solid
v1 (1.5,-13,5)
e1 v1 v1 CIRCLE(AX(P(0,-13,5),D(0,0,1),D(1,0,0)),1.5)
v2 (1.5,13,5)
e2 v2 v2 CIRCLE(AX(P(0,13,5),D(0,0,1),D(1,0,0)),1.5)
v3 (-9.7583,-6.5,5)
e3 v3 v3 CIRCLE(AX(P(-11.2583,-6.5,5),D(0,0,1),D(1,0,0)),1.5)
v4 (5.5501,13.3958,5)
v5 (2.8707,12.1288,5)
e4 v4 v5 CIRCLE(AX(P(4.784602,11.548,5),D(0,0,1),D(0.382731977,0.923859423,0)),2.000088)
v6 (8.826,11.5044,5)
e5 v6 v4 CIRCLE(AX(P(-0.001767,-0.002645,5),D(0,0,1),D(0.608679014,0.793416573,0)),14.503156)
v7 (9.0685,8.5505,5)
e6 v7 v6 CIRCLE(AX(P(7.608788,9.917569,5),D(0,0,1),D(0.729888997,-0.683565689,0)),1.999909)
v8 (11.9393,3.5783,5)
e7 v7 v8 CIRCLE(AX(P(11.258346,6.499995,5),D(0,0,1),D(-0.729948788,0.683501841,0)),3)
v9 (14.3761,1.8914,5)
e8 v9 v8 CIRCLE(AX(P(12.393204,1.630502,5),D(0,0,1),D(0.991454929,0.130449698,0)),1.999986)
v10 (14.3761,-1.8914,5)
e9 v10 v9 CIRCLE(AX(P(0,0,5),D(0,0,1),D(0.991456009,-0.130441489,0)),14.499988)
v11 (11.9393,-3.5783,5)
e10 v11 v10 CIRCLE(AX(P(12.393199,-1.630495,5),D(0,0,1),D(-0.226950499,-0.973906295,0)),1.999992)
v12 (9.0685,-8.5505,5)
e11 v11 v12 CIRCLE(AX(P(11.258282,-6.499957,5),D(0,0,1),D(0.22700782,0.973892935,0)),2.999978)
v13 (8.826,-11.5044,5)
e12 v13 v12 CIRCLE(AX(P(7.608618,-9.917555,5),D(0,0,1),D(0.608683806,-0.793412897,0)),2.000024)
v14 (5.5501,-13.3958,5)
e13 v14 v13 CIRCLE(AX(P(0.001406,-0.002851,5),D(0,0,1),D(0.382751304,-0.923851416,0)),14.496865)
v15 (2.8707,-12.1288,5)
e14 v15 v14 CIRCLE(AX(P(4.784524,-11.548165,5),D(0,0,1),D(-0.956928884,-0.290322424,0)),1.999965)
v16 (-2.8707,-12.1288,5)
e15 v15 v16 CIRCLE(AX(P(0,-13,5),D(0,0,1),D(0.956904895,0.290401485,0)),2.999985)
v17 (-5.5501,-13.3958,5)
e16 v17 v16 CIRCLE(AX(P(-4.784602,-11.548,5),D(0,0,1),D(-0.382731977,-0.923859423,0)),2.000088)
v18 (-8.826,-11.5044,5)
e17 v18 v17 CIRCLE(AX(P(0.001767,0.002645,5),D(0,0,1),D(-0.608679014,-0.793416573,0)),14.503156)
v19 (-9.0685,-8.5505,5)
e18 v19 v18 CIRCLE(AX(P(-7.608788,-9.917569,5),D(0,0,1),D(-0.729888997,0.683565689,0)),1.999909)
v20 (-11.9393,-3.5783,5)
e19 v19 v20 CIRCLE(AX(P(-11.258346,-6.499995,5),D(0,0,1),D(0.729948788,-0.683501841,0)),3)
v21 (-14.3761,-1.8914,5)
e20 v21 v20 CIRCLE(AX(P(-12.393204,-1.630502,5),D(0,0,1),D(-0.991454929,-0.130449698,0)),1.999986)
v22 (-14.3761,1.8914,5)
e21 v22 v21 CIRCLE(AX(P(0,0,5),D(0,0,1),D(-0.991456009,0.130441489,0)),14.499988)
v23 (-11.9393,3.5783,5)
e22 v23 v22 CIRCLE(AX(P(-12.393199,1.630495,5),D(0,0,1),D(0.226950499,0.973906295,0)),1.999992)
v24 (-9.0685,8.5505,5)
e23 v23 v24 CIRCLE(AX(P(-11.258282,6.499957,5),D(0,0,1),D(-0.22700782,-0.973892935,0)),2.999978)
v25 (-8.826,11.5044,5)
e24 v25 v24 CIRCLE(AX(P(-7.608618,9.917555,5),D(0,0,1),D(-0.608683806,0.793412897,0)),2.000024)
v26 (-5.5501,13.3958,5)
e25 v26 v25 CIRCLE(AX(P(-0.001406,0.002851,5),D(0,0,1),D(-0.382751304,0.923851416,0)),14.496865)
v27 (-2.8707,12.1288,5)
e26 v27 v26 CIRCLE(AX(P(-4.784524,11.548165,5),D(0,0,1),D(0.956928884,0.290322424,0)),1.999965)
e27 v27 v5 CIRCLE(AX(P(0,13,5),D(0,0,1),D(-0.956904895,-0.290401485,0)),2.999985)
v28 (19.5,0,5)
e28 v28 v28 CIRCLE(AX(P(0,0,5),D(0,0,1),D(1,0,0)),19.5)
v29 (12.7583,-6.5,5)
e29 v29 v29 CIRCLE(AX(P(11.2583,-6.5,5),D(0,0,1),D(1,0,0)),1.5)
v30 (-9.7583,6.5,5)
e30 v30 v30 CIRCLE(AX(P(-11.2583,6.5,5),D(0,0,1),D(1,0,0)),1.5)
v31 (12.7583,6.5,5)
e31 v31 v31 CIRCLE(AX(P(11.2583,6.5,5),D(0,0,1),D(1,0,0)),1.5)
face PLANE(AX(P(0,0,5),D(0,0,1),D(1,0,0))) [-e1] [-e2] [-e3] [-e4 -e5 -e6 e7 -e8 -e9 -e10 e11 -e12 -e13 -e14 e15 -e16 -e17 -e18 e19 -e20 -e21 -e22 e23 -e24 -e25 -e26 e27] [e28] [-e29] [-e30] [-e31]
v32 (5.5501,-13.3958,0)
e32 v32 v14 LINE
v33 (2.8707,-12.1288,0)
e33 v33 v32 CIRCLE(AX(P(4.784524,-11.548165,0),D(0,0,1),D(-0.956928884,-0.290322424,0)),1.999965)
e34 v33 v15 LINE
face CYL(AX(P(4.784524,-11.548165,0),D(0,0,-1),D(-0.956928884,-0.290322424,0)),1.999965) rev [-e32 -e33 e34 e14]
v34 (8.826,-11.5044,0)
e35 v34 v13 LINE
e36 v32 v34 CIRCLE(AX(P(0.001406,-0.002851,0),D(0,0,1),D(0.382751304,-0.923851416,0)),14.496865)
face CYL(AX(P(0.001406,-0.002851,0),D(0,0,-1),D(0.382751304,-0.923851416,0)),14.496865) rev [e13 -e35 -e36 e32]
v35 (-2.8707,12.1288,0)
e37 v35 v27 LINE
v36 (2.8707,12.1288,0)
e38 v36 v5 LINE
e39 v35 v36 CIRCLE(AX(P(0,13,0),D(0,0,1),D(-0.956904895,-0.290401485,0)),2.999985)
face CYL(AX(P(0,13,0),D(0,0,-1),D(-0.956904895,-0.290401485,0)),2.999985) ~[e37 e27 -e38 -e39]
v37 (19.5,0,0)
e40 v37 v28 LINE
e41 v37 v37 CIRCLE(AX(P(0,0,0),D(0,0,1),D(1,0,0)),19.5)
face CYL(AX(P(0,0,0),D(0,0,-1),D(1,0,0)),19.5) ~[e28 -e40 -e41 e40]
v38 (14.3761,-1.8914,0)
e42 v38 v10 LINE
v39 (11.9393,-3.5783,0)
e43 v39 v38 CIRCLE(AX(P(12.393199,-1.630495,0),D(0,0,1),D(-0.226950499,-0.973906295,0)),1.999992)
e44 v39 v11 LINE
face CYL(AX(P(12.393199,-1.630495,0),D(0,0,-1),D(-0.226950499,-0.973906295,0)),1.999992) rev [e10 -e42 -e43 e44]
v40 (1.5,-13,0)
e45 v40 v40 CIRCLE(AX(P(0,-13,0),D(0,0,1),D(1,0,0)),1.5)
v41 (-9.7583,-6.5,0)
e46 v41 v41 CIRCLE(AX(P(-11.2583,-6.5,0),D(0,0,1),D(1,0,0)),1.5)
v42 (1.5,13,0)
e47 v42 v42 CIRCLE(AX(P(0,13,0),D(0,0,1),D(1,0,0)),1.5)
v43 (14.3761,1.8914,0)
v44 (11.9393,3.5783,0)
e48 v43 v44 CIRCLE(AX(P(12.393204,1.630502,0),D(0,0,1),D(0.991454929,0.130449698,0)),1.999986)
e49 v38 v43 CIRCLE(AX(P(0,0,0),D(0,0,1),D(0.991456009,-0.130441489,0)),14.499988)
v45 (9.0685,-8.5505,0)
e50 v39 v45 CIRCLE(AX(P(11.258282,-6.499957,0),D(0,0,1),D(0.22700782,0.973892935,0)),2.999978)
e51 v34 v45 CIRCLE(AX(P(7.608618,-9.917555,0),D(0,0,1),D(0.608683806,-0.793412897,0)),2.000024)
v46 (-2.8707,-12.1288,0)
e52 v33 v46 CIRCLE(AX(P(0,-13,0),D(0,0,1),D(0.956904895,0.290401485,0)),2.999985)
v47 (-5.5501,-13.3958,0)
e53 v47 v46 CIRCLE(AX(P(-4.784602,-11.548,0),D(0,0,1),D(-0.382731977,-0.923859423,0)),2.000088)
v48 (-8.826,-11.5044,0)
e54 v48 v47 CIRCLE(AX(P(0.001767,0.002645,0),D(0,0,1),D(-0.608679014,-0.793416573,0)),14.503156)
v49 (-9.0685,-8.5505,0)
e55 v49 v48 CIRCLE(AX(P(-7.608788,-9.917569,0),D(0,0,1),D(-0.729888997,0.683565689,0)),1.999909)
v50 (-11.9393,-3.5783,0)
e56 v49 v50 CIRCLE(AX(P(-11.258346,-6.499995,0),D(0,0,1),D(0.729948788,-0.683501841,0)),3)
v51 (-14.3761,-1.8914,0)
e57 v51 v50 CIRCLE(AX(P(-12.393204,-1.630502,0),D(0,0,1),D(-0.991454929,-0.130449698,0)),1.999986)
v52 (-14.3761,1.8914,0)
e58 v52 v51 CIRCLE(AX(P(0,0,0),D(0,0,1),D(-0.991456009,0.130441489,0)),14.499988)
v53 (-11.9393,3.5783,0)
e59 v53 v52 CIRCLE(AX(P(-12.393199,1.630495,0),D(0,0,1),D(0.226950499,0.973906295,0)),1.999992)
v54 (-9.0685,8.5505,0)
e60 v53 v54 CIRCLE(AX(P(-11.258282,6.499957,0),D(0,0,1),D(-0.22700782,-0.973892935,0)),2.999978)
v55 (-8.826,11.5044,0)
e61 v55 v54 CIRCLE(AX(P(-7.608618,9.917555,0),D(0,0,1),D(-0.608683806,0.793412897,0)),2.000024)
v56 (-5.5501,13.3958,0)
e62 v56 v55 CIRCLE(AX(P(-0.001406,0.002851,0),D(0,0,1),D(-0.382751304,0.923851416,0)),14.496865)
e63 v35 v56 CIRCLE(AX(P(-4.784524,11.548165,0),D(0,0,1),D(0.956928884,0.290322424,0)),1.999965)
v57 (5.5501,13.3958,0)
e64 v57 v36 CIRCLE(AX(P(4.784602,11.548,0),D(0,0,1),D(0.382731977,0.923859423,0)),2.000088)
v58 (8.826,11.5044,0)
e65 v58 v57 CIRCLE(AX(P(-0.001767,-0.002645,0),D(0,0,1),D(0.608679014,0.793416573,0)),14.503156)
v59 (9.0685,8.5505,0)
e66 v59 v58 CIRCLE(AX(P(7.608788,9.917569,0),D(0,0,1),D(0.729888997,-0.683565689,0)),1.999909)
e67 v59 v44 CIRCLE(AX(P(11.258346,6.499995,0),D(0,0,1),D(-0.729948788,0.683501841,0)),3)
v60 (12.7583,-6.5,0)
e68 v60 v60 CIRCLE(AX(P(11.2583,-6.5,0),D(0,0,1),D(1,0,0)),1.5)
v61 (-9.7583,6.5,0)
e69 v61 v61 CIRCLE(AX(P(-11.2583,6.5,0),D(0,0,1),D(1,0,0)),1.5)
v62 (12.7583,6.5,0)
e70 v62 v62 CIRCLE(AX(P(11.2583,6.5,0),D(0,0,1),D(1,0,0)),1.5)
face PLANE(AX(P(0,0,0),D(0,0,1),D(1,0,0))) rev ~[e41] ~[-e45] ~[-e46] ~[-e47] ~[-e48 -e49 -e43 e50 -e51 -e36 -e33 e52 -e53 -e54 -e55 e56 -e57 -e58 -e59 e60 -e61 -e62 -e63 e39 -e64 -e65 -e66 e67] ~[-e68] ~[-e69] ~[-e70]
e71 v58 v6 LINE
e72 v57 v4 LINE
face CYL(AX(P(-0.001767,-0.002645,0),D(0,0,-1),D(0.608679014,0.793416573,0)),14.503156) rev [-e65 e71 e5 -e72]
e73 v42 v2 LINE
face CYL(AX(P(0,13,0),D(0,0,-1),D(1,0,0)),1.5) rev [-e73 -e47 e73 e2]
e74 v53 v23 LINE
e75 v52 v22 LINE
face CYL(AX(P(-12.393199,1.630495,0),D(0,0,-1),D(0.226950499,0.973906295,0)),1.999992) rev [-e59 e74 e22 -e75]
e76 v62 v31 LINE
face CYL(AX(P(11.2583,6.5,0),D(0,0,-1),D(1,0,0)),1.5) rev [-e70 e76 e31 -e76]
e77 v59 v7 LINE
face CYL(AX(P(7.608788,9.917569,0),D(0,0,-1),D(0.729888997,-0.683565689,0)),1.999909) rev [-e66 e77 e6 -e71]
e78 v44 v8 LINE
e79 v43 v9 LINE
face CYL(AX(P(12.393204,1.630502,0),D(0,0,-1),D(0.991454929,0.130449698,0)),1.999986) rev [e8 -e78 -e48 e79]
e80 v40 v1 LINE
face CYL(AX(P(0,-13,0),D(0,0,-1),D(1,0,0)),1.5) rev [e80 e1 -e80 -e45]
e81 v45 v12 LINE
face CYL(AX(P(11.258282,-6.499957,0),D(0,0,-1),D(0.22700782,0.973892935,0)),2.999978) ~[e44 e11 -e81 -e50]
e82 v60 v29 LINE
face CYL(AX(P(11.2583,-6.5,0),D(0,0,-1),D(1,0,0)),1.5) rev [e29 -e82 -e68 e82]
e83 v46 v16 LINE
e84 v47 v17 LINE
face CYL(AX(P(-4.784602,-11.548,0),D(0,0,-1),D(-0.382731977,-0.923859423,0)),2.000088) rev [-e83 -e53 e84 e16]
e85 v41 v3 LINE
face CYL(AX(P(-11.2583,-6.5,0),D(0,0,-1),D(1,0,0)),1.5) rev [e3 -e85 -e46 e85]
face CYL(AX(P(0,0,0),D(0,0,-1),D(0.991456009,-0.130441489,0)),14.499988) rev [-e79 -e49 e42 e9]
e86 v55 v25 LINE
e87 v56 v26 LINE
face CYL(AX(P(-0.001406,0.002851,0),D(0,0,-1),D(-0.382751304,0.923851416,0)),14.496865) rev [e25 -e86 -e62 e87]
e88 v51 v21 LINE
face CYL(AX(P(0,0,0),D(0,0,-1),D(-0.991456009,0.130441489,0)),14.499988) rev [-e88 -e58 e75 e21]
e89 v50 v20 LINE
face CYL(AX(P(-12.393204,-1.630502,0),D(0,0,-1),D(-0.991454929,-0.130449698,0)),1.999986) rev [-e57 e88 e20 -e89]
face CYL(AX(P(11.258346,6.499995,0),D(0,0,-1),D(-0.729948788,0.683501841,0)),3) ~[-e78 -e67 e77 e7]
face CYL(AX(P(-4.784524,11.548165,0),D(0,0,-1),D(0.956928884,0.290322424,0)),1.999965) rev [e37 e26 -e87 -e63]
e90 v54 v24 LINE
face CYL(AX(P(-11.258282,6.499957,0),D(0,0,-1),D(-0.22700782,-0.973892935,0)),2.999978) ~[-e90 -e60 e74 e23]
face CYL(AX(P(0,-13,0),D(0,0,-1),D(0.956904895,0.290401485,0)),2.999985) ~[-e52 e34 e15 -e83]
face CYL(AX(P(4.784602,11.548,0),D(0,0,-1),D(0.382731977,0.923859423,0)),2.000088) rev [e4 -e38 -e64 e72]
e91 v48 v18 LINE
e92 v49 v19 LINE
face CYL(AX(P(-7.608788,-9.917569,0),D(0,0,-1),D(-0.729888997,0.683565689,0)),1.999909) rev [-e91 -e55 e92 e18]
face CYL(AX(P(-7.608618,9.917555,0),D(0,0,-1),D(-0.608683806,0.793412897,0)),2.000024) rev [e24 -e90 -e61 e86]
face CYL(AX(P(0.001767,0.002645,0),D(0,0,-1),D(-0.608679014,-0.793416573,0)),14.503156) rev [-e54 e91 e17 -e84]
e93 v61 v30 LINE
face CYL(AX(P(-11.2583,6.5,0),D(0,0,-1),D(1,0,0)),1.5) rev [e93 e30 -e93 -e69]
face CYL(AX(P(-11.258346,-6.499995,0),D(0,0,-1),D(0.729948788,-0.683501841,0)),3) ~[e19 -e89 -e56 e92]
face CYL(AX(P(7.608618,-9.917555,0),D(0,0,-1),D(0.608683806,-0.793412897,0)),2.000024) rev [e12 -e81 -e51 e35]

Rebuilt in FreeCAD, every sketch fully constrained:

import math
import FreeCAD as App
import Part
import Sketcher
Q = App.Units.Quantity

doc = App.newDocument("Part")
body = doc.addObject("PartDesign::Body", "Body")

sketch1 = body.newObject("Sketcher::SketchObject", "Sketch")
sketch1.AttachmentSupport = (doc.getObject("XY_Plane"), [""])
sketch1.MapMode = "FlatFace"
sketch1.addGeometry([
    Part.Circle(App.Vector(0, 0, 0), App.Vector(0, 0, 1), 19.5),
    Part.Circle(App.Vector(-11.2583, -6.5, 0), App.Vector(0, 0, 1), 1.5),
    Part.Circle(App.Vector(0, -13, 0), App.Vector(0, 0, 1), 1.5),
    Part.Circle(App.Vector(11.2583, -6.5, 0), App.Vector(0, 0, 1), 1.5),
    Part.Circle(App.Vector(-11.2583, 6.5, 0), App.Vector(0, 0, 1), 1.5),
    Part.ArcOfCircle(Part.Circle(App.Vector(12.3932, 1.6305, 0), App.Vector(0, 0, 1), 1.99999), math.radians(7.495633), math.radians(103.117655)),
    Part.ArcOfCircle(Part.Circle(App.Vector(0, 0, 0), App.Vector(0, 0, 1), 14.499988), math.radians(-7.495105), math.radians(7.495105)),
    Part.ArcOfCircle(Part.Circle(App.Vector(12.3932, -1.6305, 0), App.Vector(0, 0, 1), 1.999988), math.radians(-103.117655), math.radians(-7.495633)),
    Part.ArcOfCircle(Part.Circle(App.Vector(11.2583, -6.5, 0), App.Vector(0, 0, 1), 3.000015), math.radians(76.879555), math.radians(223.118427)),
    Part.ArcOfCircle(Part.Circle(App.Vector(7.6087, -9.9176, 0), App.Vector(0, 0, 1), 1.999938), math.radians(-52.506693), math.radians(43.121824)),
    Part.ArcOfCircle(Part.Circle(App.Vector(0.001406, -0.002851, 0), App.Vector(0, 0, 1), 14.496865), math.radians(-67.495791), math.radians(-52.502681)),
    Part.ArcOfCircle(Part.Circle(App.Vector(4.7846, -11.5481, 0), App.Vector(0, 0, 1), 2.000056), math.radians(-163.121579), math.radians(-67.495829)),
    Part.ArcOfCircle(Part.Circle(App.Vector(0, -13, 0), App.Vector(0, 0, 1), 2.999985), math.radians(16.881994), math.radians(163.118006)),
    Part.ArcOfCircle(Part.Circle(App.Vector(-4.7846, -11.5481, 0), App.Vector(0, 0, 1), 1.999996), math.radians(-112.504171), math.radians(-16.878421)),
    Part.ArcOfCircle(Part.Circle(App.Vector(0.001767, 0.002645, 0), App.Vector(0, 0, 1), 14.503156), math.radians(-127.494048), math.radians(-112.50748)),
    Part.ArcOfCircle(Part.Circle(App.Vector(-7.6087, -9.9176, 0), App.Vector(0, 0, 1), 1.999995), math.radians(136.878176), math.radians(232.506693)),
    Part.ArcOfCircle(Part.Circle(App.Vector(-11.2583, -6.5, 0), App.Vector(0, 0, 1), 2.999962), math.radians(-43.118427), math.radians(103.120445)),
    Part.ArcOfCircle(Part.Circle(App.Vector(-12.3932, -1.6305, 0), App.Vector(0, 0, 1), 1.99999), math.radians(-172.504367), math.radians(-76.882345)),
    Part.ArcOfCircle(Part.Circle(App.Vector(0, 0, 0), App.Vector(0, 0, 1), 14.499988), math.radians(172.504895), math.radians(187.495105)),
    Part.ArcOfCircle(Part.Circle(App.Vector(-12.3932, 1.6305, 0), App.Vector(0, 0, 1), 1.999988), math.radians(76.882345), math.radians(172.504367)),
    Part.ArcOfCircle(Part.Circle(App.Vector(-11.2583, 6.5, 0), App.Vector(0, 0, 1), 3.000015), math.radians(-103.120445), math.radians(43.118427)),
    Part.ArcOfCircle(Part.Circle(App.Vector(-7.6087, 9.9176, 0), App.Vector(0, 0, 1), 1.999938), math.radians(127.493307), math.radians(223.121824)),
    Part.ArcOfCircle(Part.Circle(App.Vector(-0.001406, 0.002851, 0), App.Vector(0, 0, 1), 14.496865), math.radians(112.504209), math.radians(127.497319)),
    Part.ArcOfCircle(Part.Circle(App.Vector(-4.7846, 11.5481, 0), App.Vector(0, 0, 1), 2.000056), math.radians(16.878421), math.radians(112.504171)),
    Part.ArcOfCircle(Part.Circle(App.Vector(0, 13, 0), App.Vector(0, 0, 1), 2.999985), math.radians(-163.118006), math.radians(-16.881994)),
    Part.ArcOfCircle(Part.Circle(App.Vector(4.7846, 11.5481, 0), App.Vector(0, 0, 1), 1.999996), math.radians(67.495829), math.radians(163.121579)),
    Part.ArcOfCircle(Part.Circle(App.Vector(-0.001767, -0.002645, 0), App.Vector(0, 0, 1), 14.503156), math.radians(52.505952), math.radians(67.49252)),
    Part.ArcOfCircle(Part.Circle(App.Vector(7.6087, 9.9176, 0), App.Vector(0, 0, 1), 1.999995), math.radians(-43.121824), math.radians(52.506693)),
    Part.ArcOfCircle(Part.Circle(App.Vector(11.2583, 6.5, 0), App.Vector(0, 0, 1), 2.999962), math.radians(136.881573), math.radians(283.120445)),
    Part.Circle(App.Vector(11.2583, 6.5, 0), App.Vector(0, 0, 1), 1.5),
    Part.Circle(App.Vector(0, 13, 0), App.Vector(0, 0, 1), 1.5),
], False)
sketch1.addConstraint([
    Sketcher.Constraint("Coincident", 5, 1, 6, 2),
    Sketcher.Constraint("Coincident", 6, 1, 7, 2),
    Sketcher.Constraint("Coincident", 7, 1, 8, 1),
    Sketcher.Constraint("Coincident", 8, 2, 9, 2),
    Sketcher.Constraint("Coincident", 9, 1, 10, 2),
    Sketcher.Constraint("Coincident", 10, 1, 11, 2),
    Sketcher.Constraint("Coincident", 11, 1, 12, 1),
    Sketcher.Constraint("Coincident", 12, 2, 13, 2),
    Sketcher.Constraint("Coincident", 13, 1, 14, 2),
    Sketcher.Constraint("Coincident", 14, 1, 15, 2),
    Sketcher.Constraint("Coincident", 15, 1, 16, 1),
    Sketcher.Constraint("Coincident", 16, 2, 17, 2),
    Sketcher.Constraint("Coincident", 17, 1, 18, 2),
    Sketcher.Constraint("Coincident", 18, 1, 19, 2),
    Sketcher.Constraint("Coincident", 19, 1, 20, 1),
    Sketcher.Constraint("Coincident", 20, 2, 21, 2),
    Sketcher.Constraint("Coincident", 21, 1, 22, 2),
    Sketcher.Constraint("Coincident", 22, 1, 23, 2),
    Sketcher.Constraint("Coincident", 23, 1, 24, 1),
    Sketcher.Constraint("Coincident", 24, 2, 25, 2),
    Sketcher.Constraint("Coincident", 25, 1, 26, 2),
    Sketcher.Constraint("Coincident", 26, 1, 27, 2),
    Sketcher.Constraint("Coincident", 27, 1, 28, 1),
    Sketcher.Constraint("Coincident", 28, 2, 5, 2),
    Sketcher.Constraint("Coincident", 0, 3, -1, 1),
    Sketcher.Constraint("Coincident", 6, 3, -1, 1),
    Sketcher.Constraint("Coincident", 18, 3, -1, 1),
    Sketcher.Constraint("Coincident", 8, 3, 3, 3),
    Sketcher.Constraint("Coincident", 12, 3, 2, 3),
    Sketcher.Constraint("Coincident", 16, 3, 1, 3),
    Sketcher.Constraint("Coincident", 20, 3, 4, 3),
    Sketcher.Constraint("Coincident", 29, 3, 28, 3),
    Sketcher.Constraint("Coincident", 30, 3, 24, 3),
    Sketcher.Constraint("PointOnObject", 2, 3, -2),
    Sketcher.Constraint("PointOnObject", 24, 3, -2),
    Sketcher.Constraint("Diameter", 0, Q("39 mm")),
    Sketcher.Constraint("Diameter", 1, Q("3 mm")),
    Sketcher.Constraint("Diameter", 2, Q("3 mm")),
    Sketcher.Constraint("Diameter", 3, Q("3 mm")),
    Sketcher.Constraint("Diameter", 4, Q("3 mm")),
    Sketcher.Constraint("Diameter", 29, Q("3 mm")),
    Sketcher.Constraint("Diameter", 30, Q("3 mm")),
    Sketcher.Constraint("Radius", 5, Q("2 mm")),
    Sketcher.Constraint("Radius", 7, Q("2 mm")),
    Sketcher.Constraint("Radius", 8, Q("3 mm")),
    Sketcher.Constraint("Radius", 9, Q("2 mm")),
    Sketcher.Constraint("Radius", 11, Q("2 mm")),
    Sketcher.Constraint("Radius", 12, Q("3 mm")),
    Sketcher.Constraint("Radius", 13, Q("2 mm")),
    Sketcher.Constraint("Radius", 15, Q("2 mm")),
    Sketcher.Constraint("Radius", 16, Q("3 mm")),
    Sketcher.Constraint("Radius", 17, Q("2 mm")),
    Sketcher.Constraint("Radius", 19, Q("2 mm")),
    Sketcher.Constraint("Radius", 20, Q("3 mm")),
    Sketcher.Constraint("Radius", 21, Q("2 mm")),
    Sketcher.Constraint("Radius", 23, Q("2 mm")),
    Sketcher.Constraint("Radius", 24, Q("3 mm")),
    Sketcher.Constraint("Radius", 25, Q("2 mm")),
    Sketcher.Constraint("Radius", 27, Q("2 mm")),
    Sketcher.Constraint("Radius", 28, Q("3 mm")),
    Sketcher.Constraint("Radius", 6, Q("14.5 mm")),
    Sketcher.Constraint("Radius", 18, Q("14.5 mm")),
    Sketcher.Constraint("DistanceY", 2, 3, -1, 1, Q("13 mm")),
    Sketcher.Constraint("DistanceY", -1, 1, 24, 3, Q("13 mm")),
    Sketcher.Constraint("DistanceY", 1, 3, 4, 3, Q("13 mm")),
    Sketcher.Constraint("DistanceY", 3, 3, 4, 3, Q("13 mm")),
    Sketcher.Constraint("DistanceY", 1, 3, -1, 1, Q("6.5 mm")),
    Sketcher.Constraint("DistanceY", -1, 1, 28, 3, Q("6.5 mm")),
    Sketcher.Constraint("Radius", 10, Q("14.4969 mm")),
    Sketcher.Constraint("Radius", 14, Q("14.5032 mm")),
    Sketcher.Constraint("Radius", 22, Q("14.4969 mm")),
    Sketcher.Constraint("Radius", 26, Q("14.5032 mm")),
    Sketcher.Constraint("DistanceX", -1, 1, 10, 1, Q("5.55 mm")),
    Sketcher.Constraint("DistanceX", 13, 1, -1, 1, Q("5.55 mm")),
    Sketcher.Constraint("DistanceX", 22, 1, -1, 1, Q("5.55 mm")),
    Sketcher.Constraint("DistanceX", -1, 1, 25, 1, Q("5.55 mm")),
    Sketcher.Constraint("DistanceX", 15, 3, 10, 3, Q("7.61 mm")),
    Sketcher.Constraint("DistanceX", 22, 3, 27, 3, Q("7.61 mm")),
    Sketcher.Constraint("DistanceY", 11, 3, -1, 1, Q("11.548 mm")),
    Sketcher.Constraint("DistanceY", 13, 3, -1, 1, Q("11.548 mm")),
    Sketcher.Constraint("DistanceY", -1, 1, 23, 3, Q("11.548 mm")),
    Sketcher.Constraint("DistanceY", -1, 1, 25, 3, Q("11.548 mm")),
    Sketcher.Constraint("DistanceX", -1, 1, 5, 1, Q("14.376 mm")),
    Sketcher.Constraint("DistanceX", -1, 1, 6, 1, Q("14.376 mm")),
    Sketcher.Constraint("DistanceX", -1, 1, 9, 1, Q("8.826 mm")),
    Sketcher.Constraint("DistanceX", 14, 1, -1, 1, Q("8.826 mm")),
    Sketcher.Constraint("DistanceX", 17, 1, -1, 1, Q("14.376 mm")),
    Sketcher.Constraint("DistanceX", 18, 1, -1, 1, Q("14.376 mm")),
    Sketcher.Constraint("DistanceX", 21, 1, -1, 1, Q("8.826 mm")),
    Sketcher.Constraint("DistanceX", -1, 1, 26, 1, Q("8.826 mm")),
    Sketcher.Constraint("DistanceX", 3, 3, 5, 3, Q("1.135 mm")),
    Sketcher.Constraint("DistanceY", 7, 3, 5, 3, Q("3.261 mm")),
    Sketcher.Constraint("DistanceY", 9, 3, 7, 3, Q("8.287 mm")),
    Sketcher.Constraint("DistanceX", 17, 3, 1, 3, Q("1.135 mm")),
    Sketcher.Constraint("DistanceX", 17, 3, 4, 3, Q("1.135 mm")),
    Sketcher.Constraint("DistanceY", 19, 3, 21, 3, Q("8.287 mm")),
    Sketcher.Constraint("DistanceX", 7, 1, 7, 3, Q("0.454 mm")),
    Sketcher.Constraint("DistanceY", 9, 3, 8, 2, Q("1.367 mm")),
    Sketcher.Constraint("DistanceX", 11, 1, 11, 3, Q("1.914 mm")),
    Sketcher.Constraint("DistanceX", 13, 3, 12, 2, Q("1.914 mm")),
    Sketcher.Constraint("DistanceY", 15, 3, 15, 1, Q("1.367 mm")),
    Sketcher.Constraint("DistanceX", 17, 3, 16, 2, Q("0.454 mm")),
    Sketcher.Constraint("DistanceX", 19, 3, 19, 1, Q("0.454 mm")),
    Sketcher.Constraint("DistanceY", 20, 2, 21, 3, Q("1.367 mm")),
    Sketcher.Constraint("DistanceX", 23, 3, 23, 1, Q("1.914 mm")),
    Sketcher.Constraint("DistanceX", 24, 2, 25, 3, Q("1.914 mm")),
    Sketcher.Constraint("DistanceY", 27, 1, 27, 3, Q("1.367 mm")),
    Sketcher.Constraint("DistanceX", 28, 2, 5, 3, Q("0.454 mm")),
])
pad1 = body.newObject("PartDesign::Pad", "Pad")
pad1.Profile = sketch1
pad1.Length = 5

doc.recompute()
